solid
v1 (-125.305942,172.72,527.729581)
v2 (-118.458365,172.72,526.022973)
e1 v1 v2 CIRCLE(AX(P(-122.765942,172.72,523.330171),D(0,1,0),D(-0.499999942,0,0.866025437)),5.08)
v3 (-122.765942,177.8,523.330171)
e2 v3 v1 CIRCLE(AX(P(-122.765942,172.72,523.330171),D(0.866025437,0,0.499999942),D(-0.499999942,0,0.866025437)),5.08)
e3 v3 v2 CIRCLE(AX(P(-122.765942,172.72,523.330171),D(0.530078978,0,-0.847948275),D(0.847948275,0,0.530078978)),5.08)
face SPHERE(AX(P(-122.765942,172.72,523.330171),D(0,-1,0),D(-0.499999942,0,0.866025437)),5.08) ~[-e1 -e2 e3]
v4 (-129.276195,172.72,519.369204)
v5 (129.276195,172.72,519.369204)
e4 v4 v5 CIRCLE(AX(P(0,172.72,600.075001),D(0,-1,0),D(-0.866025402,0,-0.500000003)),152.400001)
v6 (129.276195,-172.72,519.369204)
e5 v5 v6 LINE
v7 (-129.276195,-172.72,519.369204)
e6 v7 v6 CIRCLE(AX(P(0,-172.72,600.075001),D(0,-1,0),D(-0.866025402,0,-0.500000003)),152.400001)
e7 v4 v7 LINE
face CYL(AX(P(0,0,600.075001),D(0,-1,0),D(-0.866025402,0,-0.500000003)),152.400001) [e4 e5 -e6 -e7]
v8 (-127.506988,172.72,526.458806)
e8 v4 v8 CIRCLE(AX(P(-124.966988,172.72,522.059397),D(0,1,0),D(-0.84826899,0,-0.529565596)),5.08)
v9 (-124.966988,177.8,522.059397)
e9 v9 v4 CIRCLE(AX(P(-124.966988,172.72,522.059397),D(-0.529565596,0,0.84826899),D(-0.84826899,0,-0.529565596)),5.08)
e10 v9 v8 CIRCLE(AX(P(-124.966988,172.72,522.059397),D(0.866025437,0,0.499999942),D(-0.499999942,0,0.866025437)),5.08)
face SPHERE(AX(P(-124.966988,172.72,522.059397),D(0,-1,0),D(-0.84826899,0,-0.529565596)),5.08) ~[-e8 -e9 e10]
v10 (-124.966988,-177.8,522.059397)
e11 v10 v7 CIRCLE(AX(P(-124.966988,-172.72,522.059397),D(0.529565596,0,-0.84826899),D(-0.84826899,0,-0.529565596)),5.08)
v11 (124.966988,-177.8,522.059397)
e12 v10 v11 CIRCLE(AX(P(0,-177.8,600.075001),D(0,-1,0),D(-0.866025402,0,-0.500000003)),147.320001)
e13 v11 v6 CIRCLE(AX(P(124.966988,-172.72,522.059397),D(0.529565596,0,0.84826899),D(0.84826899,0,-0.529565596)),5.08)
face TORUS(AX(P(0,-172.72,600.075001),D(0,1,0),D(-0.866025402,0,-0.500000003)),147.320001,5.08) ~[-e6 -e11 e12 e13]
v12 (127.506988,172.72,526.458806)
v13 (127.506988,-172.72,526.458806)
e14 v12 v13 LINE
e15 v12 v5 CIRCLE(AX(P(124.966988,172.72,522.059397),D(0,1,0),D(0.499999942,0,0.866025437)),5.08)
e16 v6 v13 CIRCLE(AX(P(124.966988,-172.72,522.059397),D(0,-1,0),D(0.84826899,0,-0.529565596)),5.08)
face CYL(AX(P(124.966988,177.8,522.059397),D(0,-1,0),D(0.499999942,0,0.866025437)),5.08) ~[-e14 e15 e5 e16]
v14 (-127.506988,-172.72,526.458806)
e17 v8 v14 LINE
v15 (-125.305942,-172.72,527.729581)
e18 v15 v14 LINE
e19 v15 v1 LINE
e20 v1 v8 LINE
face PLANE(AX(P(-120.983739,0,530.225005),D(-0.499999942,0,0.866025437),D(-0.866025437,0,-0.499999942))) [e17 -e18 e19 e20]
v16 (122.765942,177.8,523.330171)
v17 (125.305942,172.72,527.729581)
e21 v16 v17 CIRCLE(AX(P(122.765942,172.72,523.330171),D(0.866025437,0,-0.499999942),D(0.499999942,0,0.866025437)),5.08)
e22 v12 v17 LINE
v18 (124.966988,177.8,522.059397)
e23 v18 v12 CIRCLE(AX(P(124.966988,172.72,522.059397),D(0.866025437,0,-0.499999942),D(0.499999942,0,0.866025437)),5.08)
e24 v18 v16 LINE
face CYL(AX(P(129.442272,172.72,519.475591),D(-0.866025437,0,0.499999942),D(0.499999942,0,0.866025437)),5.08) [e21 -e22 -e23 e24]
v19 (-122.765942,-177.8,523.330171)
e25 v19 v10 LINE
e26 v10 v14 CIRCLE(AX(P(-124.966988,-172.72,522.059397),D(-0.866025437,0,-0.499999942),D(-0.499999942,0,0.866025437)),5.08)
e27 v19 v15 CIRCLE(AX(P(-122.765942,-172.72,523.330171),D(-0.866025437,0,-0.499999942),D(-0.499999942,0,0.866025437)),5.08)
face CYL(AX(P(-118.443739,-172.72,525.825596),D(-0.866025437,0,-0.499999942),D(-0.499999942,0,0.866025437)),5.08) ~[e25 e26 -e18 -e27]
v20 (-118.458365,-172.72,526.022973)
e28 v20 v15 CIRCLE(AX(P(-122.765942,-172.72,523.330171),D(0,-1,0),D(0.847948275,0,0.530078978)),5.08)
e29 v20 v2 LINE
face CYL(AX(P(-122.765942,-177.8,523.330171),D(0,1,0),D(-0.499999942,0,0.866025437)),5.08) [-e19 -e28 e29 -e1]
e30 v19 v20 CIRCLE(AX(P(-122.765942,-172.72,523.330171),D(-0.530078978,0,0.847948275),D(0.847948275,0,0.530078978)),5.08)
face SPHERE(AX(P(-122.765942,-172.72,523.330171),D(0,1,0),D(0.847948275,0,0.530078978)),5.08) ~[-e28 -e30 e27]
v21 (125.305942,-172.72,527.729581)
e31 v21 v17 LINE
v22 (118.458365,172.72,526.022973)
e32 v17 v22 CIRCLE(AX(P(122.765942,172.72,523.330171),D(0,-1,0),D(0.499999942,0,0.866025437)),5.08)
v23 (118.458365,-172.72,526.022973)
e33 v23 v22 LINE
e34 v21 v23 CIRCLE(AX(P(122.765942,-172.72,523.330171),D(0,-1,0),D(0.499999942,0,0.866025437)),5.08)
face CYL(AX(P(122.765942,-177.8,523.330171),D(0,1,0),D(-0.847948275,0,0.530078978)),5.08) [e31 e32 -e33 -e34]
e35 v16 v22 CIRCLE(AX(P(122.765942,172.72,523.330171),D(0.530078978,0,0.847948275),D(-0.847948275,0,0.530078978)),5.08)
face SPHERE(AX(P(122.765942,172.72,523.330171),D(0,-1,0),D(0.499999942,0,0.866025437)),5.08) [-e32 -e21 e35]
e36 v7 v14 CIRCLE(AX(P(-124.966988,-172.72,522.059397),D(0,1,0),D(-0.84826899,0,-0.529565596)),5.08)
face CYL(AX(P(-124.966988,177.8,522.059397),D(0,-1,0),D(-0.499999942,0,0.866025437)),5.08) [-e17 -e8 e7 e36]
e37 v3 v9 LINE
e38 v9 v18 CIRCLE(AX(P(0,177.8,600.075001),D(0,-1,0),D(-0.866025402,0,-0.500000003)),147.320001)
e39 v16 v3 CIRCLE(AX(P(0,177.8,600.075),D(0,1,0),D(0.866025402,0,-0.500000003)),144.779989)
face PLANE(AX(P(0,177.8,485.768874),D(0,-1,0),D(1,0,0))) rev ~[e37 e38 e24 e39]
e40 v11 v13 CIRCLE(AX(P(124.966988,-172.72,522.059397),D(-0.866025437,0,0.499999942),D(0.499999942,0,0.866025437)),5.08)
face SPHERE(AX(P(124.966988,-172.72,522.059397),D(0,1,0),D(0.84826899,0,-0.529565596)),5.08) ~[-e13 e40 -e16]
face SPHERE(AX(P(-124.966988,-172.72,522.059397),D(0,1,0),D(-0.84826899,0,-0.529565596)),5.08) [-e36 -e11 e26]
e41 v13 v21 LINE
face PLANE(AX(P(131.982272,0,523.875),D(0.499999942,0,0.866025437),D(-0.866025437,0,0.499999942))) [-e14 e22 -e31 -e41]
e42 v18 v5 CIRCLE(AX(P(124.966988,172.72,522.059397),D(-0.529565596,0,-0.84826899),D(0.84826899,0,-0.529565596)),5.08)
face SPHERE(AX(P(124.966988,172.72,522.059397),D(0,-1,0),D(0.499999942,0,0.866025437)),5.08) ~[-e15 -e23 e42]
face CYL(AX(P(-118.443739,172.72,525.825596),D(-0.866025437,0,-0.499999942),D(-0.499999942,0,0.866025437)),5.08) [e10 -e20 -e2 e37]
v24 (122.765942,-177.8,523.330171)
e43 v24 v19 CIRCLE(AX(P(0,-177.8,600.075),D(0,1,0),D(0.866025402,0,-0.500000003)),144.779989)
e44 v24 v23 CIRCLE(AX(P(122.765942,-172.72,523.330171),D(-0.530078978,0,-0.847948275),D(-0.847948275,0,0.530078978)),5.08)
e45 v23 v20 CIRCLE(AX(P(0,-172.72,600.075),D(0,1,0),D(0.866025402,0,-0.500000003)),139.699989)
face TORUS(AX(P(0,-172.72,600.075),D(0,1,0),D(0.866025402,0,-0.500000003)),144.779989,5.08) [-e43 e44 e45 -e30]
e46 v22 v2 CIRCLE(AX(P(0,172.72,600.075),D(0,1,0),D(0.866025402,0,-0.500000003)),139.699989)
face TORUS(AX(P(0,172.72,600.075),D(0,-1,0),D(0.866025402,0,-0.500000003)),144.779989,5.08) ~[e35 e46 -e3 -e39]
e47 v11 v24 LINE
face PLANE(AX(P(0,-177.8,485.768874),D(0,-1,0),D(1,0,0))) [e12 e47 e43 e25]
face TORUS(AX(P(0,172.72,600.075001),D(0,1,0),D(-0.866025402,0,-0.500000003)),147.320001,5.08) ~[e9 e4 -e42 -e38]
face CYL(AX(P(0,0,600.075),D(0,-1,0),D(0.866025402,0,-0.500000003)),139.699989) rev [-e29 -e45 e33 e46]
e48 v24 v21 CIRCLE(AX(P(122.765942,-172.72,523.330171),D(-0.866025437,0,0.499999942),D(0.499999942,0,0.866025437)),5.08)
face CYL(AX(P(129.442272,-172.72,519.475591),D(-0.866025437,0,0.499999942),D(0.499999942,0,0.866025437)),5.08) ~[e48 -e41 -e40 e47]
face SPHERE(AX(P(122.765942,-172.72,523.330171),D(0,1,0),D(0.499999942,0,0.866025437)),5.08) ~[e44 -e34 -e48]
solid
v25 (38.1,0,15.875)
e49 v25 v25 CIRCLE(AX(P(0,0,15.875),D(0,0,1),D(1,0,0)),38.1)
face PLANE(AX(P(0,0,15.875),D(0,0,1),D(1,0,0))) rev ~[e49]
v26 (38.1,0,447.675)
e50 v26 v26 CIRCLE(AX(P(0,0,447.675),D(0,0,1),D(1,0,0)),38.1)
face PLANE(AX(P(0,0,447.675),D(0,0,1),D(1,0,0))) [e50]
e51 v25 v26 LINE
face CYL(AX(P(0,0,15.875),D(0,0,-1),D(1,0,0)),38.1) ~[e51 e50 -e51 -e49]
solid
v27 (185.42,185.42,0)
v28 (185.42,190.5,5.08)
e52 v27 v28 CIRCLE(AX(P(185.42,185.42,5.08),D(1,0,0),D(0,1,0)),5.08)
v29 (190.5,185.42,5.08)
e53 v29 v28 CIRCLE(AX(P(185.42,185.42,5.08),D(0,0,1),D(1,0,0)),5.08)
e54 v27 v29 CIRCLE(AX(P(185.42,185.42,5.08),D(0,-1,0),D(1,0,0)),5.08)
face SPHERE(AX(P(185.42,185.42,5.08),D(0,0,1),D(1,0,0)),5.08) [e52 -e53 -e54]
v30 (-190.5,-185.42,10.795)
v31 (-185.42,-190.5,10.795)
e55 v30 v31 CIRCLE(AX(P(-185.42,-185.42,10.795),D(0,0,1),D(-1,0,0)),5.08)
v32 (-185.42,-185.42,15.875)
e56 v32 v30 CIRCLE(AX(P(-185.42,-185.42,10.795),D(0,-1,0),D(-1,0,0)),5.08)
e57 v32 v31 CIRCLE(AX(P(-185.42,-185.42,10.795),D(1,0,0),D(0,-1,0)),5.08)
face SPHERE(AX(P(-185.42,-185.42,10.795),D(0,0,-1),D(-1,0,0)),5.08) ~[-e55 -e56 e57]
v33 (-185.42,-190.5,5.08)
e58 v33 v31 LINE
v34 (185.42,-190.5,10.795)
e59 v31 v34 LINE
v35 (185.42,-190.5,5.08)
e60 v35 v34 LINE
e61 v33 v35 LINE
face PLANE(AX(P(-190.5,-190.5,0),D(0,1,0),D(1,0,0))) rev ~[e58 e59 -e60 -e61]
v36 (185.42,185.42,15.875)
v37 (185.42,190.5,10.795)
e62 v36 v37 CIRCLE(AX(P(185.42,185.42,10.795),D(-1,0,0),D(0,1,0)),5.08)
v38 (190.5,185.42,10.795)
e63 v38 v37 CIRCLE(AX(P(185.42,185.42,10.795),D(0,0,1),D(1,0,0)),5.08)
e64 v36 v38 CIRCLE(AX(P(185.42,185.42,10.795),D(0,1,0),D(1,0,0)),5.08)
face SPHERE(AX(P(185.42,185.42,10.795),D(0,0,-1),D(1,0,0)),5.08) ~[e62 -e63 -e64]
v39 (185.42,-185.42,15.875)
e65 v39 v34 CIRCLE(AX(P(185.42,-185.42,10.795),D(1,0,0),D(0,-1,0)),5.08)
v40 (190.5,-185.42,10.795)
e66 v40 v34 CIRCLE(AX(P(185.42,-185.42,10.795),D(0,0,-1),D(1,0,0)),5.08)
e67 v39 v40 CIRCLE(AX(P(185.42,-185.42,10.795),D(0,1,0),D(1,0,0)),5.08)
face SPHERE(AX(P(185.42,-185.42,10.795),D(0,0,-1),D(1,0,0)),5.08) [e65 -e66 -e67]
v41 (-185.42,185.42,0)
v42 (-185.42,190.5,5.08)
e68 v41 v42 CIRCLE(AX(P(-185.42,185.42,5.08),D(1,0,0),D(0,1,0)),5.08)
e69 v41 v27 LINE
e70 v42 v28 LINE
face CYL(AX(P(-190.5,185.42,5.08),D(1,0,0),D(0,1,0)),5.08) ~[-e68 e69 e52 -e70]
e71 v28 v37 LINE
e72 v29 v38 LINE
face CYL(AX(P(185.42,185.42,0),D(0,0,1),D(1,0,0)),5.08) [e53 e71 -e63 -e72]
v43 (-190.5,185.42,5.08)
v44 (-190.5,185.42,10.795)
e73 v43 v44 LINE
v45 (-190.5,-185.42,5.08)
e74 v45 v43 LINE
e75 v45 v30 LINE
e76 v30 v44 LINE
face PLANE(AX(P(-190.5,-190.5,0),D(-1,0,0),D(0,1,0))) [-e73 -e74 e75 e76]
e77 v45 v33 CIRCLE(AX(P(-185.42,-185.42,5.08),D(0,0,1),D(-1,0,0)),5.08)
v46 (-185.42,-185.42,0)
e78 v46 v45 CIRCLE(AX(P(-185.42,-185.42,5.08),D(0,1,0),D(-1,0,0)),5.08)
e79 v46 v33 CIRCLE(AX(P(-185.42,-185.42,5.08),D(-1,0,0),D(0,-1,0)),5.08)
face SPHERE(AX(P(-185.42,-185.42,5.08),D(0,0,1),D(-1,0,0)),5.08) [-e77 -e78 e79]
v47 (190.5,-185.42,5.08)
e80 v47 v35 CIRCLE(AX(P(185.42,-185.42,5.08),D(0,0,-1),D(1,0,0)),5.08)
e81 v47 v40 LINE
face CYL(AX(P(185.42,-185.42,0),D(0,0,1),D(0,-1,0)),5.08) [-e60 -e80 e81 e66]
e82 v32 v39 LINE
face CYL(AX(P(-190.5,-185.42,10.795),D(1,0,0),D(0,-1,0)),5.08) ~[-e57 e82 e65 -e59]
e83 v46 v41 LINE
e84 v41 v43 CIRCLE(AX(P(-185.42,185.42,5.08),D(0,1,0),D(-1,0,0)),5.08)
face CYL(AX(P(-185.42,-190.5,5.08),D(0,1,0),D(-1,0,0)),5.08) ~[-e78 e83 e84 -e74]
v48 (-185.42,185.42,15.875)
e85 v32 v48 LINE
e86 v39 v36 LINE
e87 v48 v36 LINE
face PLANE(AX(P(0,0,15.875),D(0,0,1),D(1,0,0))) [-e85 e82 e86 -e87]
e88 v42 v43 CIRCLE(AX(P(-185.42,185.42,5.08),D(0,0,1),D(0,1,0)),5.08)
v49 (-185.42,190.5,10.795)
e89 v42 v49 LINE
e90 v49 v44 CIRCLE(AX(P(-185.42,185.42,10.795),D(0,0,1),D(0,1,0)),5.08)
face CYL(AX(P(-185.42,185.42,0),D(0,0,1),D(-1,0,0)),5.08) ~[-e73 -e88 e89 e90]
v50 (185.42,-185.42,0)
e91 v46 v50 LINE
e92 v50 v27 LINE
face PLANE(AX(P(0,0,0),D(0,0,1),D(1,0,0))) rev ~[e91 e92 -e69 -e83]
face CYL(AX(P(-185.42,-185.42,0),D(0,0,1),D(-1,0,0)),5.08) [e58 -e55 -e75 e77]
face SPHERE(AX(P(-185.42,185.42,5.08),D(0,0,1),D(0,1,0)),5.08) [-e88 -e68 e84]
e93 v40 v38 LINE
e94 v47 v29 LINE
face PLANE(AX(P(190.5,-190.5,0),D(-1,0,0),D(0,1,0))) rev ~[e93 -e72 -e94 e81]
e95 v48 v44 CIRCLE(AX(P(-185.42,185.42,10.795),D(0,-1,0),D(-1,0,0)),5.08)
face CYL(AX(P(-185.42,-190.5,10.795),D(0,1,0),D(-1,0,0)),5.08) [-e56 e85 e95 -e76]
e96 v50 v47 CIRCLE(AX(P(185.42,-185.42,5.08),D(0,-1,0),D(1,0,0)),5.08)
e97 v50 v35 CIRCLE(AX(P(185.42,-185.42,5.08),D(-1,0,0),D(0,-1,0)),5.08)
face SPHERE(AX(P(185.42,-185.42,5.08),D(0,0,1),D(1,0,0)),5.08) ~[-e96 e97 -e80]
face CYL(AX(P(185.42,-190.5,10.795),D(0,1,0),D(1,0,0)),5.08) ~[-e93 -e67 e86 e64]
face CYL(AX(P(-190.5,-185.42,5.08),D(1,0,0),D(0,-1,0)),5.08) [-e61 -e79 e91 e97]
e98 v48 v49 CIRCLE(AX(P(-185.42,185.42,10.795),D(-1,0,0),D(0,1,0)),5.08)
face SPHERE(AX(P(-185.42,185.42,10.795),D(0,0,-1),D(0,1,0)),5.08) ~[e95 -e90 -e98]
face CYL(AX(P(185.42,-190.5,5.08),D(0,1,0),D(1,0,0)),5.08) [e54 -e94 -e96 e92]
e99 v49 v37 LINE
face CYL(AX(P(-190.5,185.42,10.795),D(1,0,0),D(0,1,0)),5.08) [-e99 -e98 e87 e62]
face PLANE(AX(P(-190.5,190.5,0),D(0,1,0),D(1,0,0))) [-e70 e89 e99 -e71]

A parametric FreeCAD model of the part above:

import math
import FreeCAD as App
import Part
import Sketcher

V = App.Vector
Q = App.Units.Quantity


def edges_at(feature, points):
    """Names of the edges that pass closest to the given points."""
    edges = feature.Shape.Edges
    near = lambda p: min(range(len(edges)), key=lambda i: edges[i].distToShape(Part.Vertex(*p))[0])
    return sorted({f"Edge{near(p) + 1}" for p in points})

doc = App.newDocument("Part")
body = doc.addObject("PartDesign::Body", "Body")

sketch1 = body.newObject("Sketcher::SketchObject", "Sketch")
sketch1.AttachmentSupport = (doc.getObject("XY_Plane"), [""])
sketch1.MapMode = "FlatFace"
sketch1.addGeometry([
    Part.LineSegment(V(-190, 190, 0), V(-190, -190, 0)),
    Part.LineSegment(V(-190, -190, 0), V(190, -190, 0)),
    Part.LineSegment(V(190, -190, 0), V(190, 190, 0)),
    Part.LineSegment(V(190, 190, 0), V(-190, 190, 0)),
], False)
sketch1.addConstraint([
    Sketcher.Constraint("Coincident", 0, 2, 1, 1),
    Sketcher.Constraint("Coincident", 1, 2, 2, 1),
    Sketcher.Constraint("Coincident", 2, 2, 3, 1),
    Sketcher.Constraint("Coincident", 3, 2, 0, 1),
    Sketcher.Constraint("Vertical", 0),
    Sketcher.Constraint("Horizontal", 1),
    Sketcher.Constraint("Vertical", 2),
    Sketcher.Constraint("Horizontal", 3),
    Sketcher.Constraint("Symmetric", 0, 2, 2, 2, -1, 1),
    Sketcher.Constraint("Equal", 3, 0),
    Sketcher.Constraint("DistanceX", 1, 1, 1, 2, Q("15 in")),
])
pad1 = body.newObject("PartDesign::Pad", "Pad")
pad1.Profile = sketch1
pad1.Length = Q("0.625 in")
doc.recompute()

fillet = body.newObject("PartDesign::Fillet", "Fillet")
fillet.Base = (pad1, ["Edge1"])
fillet.UseAllEdges = True
fillet.Radius = Q("0.2 in")
body2 = doc.addObject("PartDesign::Body", "Body001")

sketch2 = body2.newObject("Sketcher::SketchObject", "Sketch001")
sketch2.AttachmentSupport = (doc.getObject("XY_Plane001"), [""])
sketch2.MapMode = "FlatFace"
sketch2.AttachmentOffset = App.Placement(V(0, 0, 0.625 * 25.4), App.Rotation())
sketch2.addGeometry(Part.Circle(V(0, 0, 0), V(0, 0, 1), 38), False)
sketch2.addConstraint([
    Sketcher.Constraint("Coincident", 0, 3, -1, 1),
    Sketcher.Constraint("Diameter", 0, Q("3 in")),
])
pad2 = body2.newObject("PartDesign::Pad", "Pad001")
pad2.Profile = sketch2
pad2.Length = Q("17 in")
body3 = doc.addObject("PartDesign::Body", "Body002")

sketch3 = body3.newObject("Sketcher::SketchObject", "Sketch002")
sketch3.AttachmentSupport = (doc.getObject("XZ_Plane002"), [""])
sketch3.MapMode = "FlatFace"
sketch3.addGeometry([
    Part.ArcOfCircle(Part.Circle(V(0, 0, 0), V(0, 0, 1), 152), math.radians(-150), math.radians(-30)),
    Part.LineSegment(V(-132, -76, 0), V(-143, -83, 0)),
    Part.ArcOfCircle(Part.Circle(V(0, 0, 0), V(0, 0, 1), 165), math.radians(-150), math.radians(-30)),
    Part.LineSegment(V(143, -83, 0), V(132, -76, 0)),
], False)
sketch3.addConstraint([
    Sketcher.Constraint("Coincident", 0, 1, 1, 1),
    Sketcher.Constraint("Coincident", 1, 2, 2, 1),
    Sketcher.Constraint("Coincident", 2, 2, 3, 1),
    Sketcher.Constraint("Coincident", 3, 2, 0, 2),
    Sketcher.Constraint("Coincident", 0, 3, -1, 1),
    Sketcher.Constraint("Coincident", 2, 3, -1, 1),
    Sketcher.Constraint("Horizontal", 1, 2, 2, 2),
    Sketcher.Constraint("Horizontal", 0, 1, 3, 2),
    Sketcher.Constraint("Radius", 0, Q("6 in")),
    Sketcher.Constraint("Radius", 2, Q("6.5 in")),
    Sketcher.Constraint("DistanceY", 0, 1, -1, 1, Q("3 in")),
    Sketcher.Constraint("Angle", 1, Q("-149.999999 deg")),
])
pad3 = body3.newObject("PartDesign::Pad", "Pad002")
pad3.Profile = sketch3
pad3.Length = Q("14 in")
pad3.Midplane = True
doc.recompute()

fillet2 = body3.newObject("PartDesign::Fillet", "Fillet001")
fillet2.Base = (pad3, edges_at(pad3, [
    (137.482, -177.8, -79.375),
    (137.482, 177.8, -79.375),
    (-137.482, 177.8, -79.375),
    (-137.482, -177.8, -79.375),
]))
fillet2.Radius = Q("0.2 in")
doc.recompute()

fillet3 = body3.newObject("PartDesign::Fillet", "Fillet002")
fillet3.Base = (fillet2, edges_at(fillet2, [
    (131.982, 0, -76.2),
    (131.232, 176.312, -77.485),
    (131.232, -176.312, -77.485),
    (0, 177.8, -152.4),
    (0, -177.8, -152.4),
    (-131.232, 176.312, -77.485),
    (-131.232, -176.312, -77.485),
    (-131.982, 0, -76.2),
    (0, 177.8, -165.1),
    (-142.231, 176.312, -83.835),
    (142.231, 176.312, -83.835),
    (-142.981, 0, -82.55),
    (142.981, 0, -82.55),
    (-142.231, -176.312, -83.835),
    (142.231, -176.312, -83.835),
    (0, -177.8, -165.1),
]))
fillet3.Radius = Q("0.2 in")
body4 = doc.addObject("PartDesign::Body", "Body003")

sketch4 = body4.newObject("Sketcher::SketchObject", "Sketch003")
sketch4.AttachmentSupport = (doc.getObject("XZ_Plane003"), [""])
sketch4.MapMode = "FlatFace"
sketch4.addGeometry([
    Part.LineSegment(V(-121, 530, 0), V(-132, 524, 0)),
    Part.ArcOfCircle(Part.Circle(V(0, 600, 0), V(0, 0, 1), 152), math.radians(-150), math.radians(-30)),
    Part.LineSegment(V(132, 524, 0), V(121, 530, 0)),
    Part.ArcOfCircle(Part.Circle(V(0, 600, 0), V(0, 0, 1), 140), math.radians(-150), math.radians(-30)),
], False)
sketch4.addConstraint([
    Sketcher.Constraint("Coincident", 0, 2, 1, 1),
    Sketcher.Constraint("Coincident", 1, 2, 2, 1),
    Sketcher.Constraint("Coincident", 2, 2, 3, 2),
    Sketcher.Constraint("Coincident", 3, 1, 0, 1),
    Sketcher.Constraint("Coincident", 3, 3, 1, 3),
    Sketcher.Constraint("Symmetric", 0, 2, 1, 2, -2),
    Sketcher.Constraint("Horizontal", 2, 2, 3, 1),
    Sketcher.Constraint("Radius", 1, Q("6 in")),
    Sketcher.Constraint("Angle", 0, Q("-150.000004 deg")),
    Sketcher.Constraint("DistanceY", 0, 2, 3, 3, Q("3 in")),
    Sketcher.Constraint("DistanceY", 1, 2, 2, 2, Q("0.2500002 in")),
    Sketcher.Constraint("DistanceY", -1, 1, 1, 3, Q("23.625 in")),
])
pad4 = body4.newObject("PartDesign::Pad", "Pad003")
pad4.Profile = sketch4
pad4.Length = Q("14 in")
pad4.Midplane = True
doc.recompute()

fillet4 = body4.newObject("PartDesign::Fillet", "Fillet003")
fillet4.Base = (pad4, ["Edge1"])
fillet4.UseAllEdges = True
fillet4.Radius = Q("0.2 in")
body3.Visibility = False

doc.recompute()
